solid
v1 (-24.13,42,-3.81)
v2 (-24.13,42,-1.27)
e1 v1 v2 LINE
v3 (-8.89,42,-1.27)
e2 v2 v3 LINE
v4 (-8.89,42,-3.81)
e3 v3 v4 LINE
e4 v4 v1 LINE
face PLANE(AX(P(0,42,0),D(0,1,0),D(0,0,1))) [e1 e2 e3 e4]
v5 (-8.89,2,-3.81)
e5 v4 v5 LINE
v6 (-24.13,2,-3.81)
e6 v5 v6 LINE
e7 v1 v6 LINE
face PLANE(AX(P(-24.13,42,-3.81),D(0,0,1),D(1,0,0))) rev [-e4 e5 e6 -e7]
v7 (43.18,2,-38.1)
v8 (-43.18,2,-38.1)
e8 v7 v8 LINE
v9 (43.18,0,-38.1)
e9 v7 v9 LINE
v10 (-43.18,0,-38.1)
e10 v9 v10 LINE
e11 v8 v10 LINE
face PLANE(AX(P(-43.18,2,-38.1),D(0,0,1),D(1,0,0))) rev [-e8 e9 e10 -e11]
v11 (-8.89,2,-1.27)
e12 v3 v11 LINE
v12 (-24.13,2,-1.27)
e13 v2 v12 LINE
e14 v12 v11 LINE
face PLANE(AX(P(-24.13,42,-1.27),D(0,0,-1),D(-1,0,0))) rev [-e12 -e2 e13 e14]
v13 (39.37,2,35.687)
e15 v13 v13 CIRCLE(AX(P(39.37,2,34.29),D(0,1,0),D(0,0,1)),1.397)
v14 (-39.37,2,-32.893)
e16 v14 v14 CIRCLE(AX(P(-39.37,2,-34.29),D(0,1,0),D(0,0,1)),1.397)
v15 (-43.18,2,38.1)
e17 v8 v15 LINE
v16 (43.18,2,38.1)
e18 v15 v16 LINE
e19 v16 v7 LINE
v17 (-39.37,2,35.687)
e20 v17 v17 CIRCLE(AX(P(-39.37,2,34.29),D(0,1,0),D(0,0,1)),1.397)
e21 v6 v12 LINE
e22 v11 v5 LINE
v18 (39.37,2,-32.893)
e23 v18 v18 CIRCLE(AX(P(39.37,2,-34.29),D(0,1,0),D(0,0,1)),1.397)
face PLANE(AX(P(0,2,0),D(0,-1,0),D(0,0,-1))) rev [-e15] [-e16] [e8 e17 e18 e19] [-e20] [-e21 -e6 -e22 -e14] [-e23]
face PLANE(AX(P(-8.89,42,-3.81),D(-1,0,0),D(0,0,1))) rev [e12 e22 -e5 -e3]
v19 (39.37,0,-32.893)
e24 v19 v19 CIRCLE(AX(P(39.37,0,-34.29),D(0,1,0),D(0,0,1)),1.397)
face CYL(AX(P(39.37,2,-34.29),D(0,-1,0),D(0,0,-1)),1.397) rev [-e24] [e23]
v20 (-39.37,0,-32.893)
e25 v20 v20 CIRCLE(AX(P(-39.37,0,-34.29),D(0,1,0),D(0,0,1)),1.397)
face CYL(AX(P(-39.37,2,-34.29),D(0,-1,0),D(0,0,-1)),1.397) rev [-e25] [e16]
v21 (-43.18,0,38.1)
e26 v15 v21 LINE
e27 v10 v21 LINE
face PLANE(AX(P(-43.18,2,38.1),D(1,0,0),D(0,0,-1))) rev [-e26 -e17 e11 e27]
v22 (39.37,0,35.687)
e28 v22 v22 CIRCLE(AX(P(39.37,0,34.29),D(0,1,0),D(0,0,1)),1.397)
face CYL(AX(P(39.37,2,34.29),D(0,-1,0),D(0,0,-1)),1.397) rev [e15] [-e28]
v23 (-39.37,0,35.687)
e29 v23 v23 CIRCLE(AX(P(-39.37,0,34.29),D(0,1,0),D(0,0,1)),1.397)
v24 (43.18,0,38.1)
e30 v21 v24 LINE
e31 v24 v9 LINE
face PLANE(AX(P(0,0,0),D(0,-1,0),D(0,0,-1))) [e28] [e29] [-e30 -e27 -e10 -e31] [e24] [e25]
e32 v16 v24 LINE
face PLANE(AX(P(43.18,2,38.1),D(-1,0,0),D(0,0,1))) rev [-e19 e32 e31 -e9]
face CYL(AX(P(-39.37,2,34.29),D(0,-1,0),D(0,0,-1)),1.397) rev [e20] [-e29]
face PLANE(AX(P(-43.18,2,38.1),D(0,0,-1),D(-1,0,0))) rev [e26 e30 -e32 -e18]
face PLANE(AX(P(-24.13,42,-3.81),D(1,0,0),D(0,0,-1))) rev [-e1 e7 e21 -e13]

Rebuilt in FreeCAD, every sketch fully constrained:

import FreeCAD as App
import Part
import Sketcher
Q = App.Units.Quantity

doc = App.newDocument("Part")
params = doc.addObject("Spreadsheet::Sheet", "Params")
for row, (alias, value) in enumerate([
    ("sketch1_diameter", "0.11 in"),
    ("sketch1_height", "3 in"),
    ("sketch1_width", "3.4 in"),
    ("pad1_length", "2 mm"),
    ("sketch2_width", "0.6 in"),
    ("sketch2_height", "0.1 in"),
    ("pad2_length", "40 mm"),
], start=1):
    params.set(f"A{row}", alias)
    params.set(f"B{row}", "=" + value)
    params.setAlias(f"B{row}", alias)

body = doc.addObject("PartDesign::Body", "Body")

# Sketch on XZ plane
sketch1 = body.newObject("Sketcher::SketchObject", "Sketch")
sketch1.AttachmentSupport = (doc.getObject("XZ_Plane"), [""])
sketch1.MapMode = "FlatFace"
sketch1.addGeometry([
    Part.LineSegment(App.Vector(-43.2, -38.1, 0), App.Vector(-43.2, 38.1, 0)),  # 0
    Part.LineSegment(App.Vector(-43.2, 38.1, 0), App.Vector(43.2, 38.1, 0)),  # 1
    Part.LineSegment(App.Vector(43.2, 38.1, 0), App.Vector(43.2, -38.1, 0)),  # 2
    Part.LineSegment(App.Vector(43.2, -38.1, 0), App.Vector(-43.2, -38.1, 0)),  # 3
    Part.Circle(App.Vector(-39.4, 34.3, 0), App.Vector(0, 0, 1), 1.4),  # 4
    Part.Circle(App.Vector(39.4, 34.3, 0), App.Vector(0, 0, 1), 1.4),  # 5
    Part.Circle(App.Vector(-39.4, -34.3, 0), App.Vector(0, 0, 1), 1.4),  # 6
    Part.Circle(App.Vector(39.4, -34.3, 0), App.Vector(0, 0, 1), 1.4),  # 7
], False)
sketch1.addConstraint([
    Sketcher.Constraint("Coincident", 0, 2, 1, 1),
    Sketcher.Constraint("Coincident", 1, 2, 2, 1),
    Sketcher.Constraint("Coincident", 2, 2, 3, 1),
    Sketcher.Constraint("Coincident", 3, 2, 0, 1),
    Sketcher.Constraint("Vertical", 0),
    Sketcher.Constraint("Horizontal", 1),
    Sketcher.Constraint("Vertical", 2),
    Sketcher.Constraint("Horizontal", 3),
    Sketcher.Constraint("Equal", 4, 5),
    Sketcher.Constraint("Equal", 5, 6),
    Sketcher.Constraint("Equal", 6, 7),
    Sketcher.Constraint("Symmetric", 5, 3, 6, 3, -1, 1),
    Sketcher.Constraint("Symmetric", 4, 3, 7, 3, -1, 1),
    Sketcher.Constraint("Symmetric", 0, 2, 2, 2, -1, 1),
    Sketcher.Constraint("Symmetric", 4, 3, 5, 3, -2),
    Sketcher.Constraint("Diameter", 4, Q("0.11 in")),
    Sketcher.Constraint("DistanceY", 0, 1, 0, 2, Q("3 in")),
    Sketcher.Constraint("DistanceX", 1, 1, 1, 2, Q("3.4 in")),
    Sketcher.Constraint("DistanceX", 4, 3, 5, 3, Q("3.1 in")),
    Sketcher.Constraint("DistanceY", 6, 3, 4, 3, Q("2.7 in")),
])
sketch1.setExpression("Constraints[15]", "Params.sketch1_diameter")
sketch1.setExpression("Constraints[16]", "Params.sketch1_height")
sketch1.setExpression("Constraints[17]", "Params.sketch1_width")
pad1 = body.newObject("PartDesign::Pad", "Pad")
pad1.Profile = sketch1
pad1.setExpression("Length", "Params.pad1_length")
pad1.Reversed = True

# Sketch on XZ plane
sketch2 = body.newObject("Sketcher::SketchObject", "Sketch001")
sketch2.AttachmentSupport = (doc.getObject("XZ_Plane"), [""])
sketch2.MapMode = "FlatFace"
sketch2.AttachmentOffset = App.Placement(App.Vector(0, 0, -2), App.Rotation())
sketch2.addGeometry([
    Part.LineSegment(App.Vector(-24.1, -3.8, 0), App.Vector(-24.1, -1.3, 0)),
    Part.LineSegment(App.Vector(-24.1, -1.3, 0), App.Vector(-8.9, -1.3, 0)),
    Part.LineSegment(App.Vector(-8.9, -1.3, 0), App.Vector(-8.9, -3.8, 0)),
    Part.LineSegment(App.Vector(-8.9, -3.8, 0), App.Vector(-24.1, -3.8, 0)),
], False)
sketch2.addConstraint([
    Sketcher.Constraint("Coincident", 0, 2, 1, 1),
    Sketcher.Constraint("Coincident", 1, 2, 2, 1),
    Sketcher.Constraint("Coincident", 2, 2, 3, 1),
    Sketcher.Constraint("Coincident", 3, 2, 0, 1),
    Sketcher.Constraint("Vertical", 0),
    Sketcher.Constraint("Horizontal", 1),
    Sketcher.Constraint("Vertical", 2),
    Sketcher.Constraint("Horizontal", 3),
    Sketcher.Constraint("DistanceX", 1, 1, 1, 2, Q("0.6 in")),
    Sketcher.Constraint("DistanceY", 0, 1, 0, 2, Q("0.1 in")),
    Sketcher.Constraint("DistanceX", 0, 2, -1, 1, Q("0.95 in")),
    Sketcher.Constraint("DistanceY", 0, 2, -1, 1, Q("0.05 in")),
])
sketch2.setExpression("Constraints[8]", "Params.sketch2_width")
sketch2.setExpression("Constraints[9]", "Params.sketch2_height")
pad2 = body.newObject("PartDesign::Pad", "Pad001")
pad2.Profile = sketch2
pad2.setExpression("Length", "Params.pad2_length")
pad2.Reversed = True

doc.recompute()
